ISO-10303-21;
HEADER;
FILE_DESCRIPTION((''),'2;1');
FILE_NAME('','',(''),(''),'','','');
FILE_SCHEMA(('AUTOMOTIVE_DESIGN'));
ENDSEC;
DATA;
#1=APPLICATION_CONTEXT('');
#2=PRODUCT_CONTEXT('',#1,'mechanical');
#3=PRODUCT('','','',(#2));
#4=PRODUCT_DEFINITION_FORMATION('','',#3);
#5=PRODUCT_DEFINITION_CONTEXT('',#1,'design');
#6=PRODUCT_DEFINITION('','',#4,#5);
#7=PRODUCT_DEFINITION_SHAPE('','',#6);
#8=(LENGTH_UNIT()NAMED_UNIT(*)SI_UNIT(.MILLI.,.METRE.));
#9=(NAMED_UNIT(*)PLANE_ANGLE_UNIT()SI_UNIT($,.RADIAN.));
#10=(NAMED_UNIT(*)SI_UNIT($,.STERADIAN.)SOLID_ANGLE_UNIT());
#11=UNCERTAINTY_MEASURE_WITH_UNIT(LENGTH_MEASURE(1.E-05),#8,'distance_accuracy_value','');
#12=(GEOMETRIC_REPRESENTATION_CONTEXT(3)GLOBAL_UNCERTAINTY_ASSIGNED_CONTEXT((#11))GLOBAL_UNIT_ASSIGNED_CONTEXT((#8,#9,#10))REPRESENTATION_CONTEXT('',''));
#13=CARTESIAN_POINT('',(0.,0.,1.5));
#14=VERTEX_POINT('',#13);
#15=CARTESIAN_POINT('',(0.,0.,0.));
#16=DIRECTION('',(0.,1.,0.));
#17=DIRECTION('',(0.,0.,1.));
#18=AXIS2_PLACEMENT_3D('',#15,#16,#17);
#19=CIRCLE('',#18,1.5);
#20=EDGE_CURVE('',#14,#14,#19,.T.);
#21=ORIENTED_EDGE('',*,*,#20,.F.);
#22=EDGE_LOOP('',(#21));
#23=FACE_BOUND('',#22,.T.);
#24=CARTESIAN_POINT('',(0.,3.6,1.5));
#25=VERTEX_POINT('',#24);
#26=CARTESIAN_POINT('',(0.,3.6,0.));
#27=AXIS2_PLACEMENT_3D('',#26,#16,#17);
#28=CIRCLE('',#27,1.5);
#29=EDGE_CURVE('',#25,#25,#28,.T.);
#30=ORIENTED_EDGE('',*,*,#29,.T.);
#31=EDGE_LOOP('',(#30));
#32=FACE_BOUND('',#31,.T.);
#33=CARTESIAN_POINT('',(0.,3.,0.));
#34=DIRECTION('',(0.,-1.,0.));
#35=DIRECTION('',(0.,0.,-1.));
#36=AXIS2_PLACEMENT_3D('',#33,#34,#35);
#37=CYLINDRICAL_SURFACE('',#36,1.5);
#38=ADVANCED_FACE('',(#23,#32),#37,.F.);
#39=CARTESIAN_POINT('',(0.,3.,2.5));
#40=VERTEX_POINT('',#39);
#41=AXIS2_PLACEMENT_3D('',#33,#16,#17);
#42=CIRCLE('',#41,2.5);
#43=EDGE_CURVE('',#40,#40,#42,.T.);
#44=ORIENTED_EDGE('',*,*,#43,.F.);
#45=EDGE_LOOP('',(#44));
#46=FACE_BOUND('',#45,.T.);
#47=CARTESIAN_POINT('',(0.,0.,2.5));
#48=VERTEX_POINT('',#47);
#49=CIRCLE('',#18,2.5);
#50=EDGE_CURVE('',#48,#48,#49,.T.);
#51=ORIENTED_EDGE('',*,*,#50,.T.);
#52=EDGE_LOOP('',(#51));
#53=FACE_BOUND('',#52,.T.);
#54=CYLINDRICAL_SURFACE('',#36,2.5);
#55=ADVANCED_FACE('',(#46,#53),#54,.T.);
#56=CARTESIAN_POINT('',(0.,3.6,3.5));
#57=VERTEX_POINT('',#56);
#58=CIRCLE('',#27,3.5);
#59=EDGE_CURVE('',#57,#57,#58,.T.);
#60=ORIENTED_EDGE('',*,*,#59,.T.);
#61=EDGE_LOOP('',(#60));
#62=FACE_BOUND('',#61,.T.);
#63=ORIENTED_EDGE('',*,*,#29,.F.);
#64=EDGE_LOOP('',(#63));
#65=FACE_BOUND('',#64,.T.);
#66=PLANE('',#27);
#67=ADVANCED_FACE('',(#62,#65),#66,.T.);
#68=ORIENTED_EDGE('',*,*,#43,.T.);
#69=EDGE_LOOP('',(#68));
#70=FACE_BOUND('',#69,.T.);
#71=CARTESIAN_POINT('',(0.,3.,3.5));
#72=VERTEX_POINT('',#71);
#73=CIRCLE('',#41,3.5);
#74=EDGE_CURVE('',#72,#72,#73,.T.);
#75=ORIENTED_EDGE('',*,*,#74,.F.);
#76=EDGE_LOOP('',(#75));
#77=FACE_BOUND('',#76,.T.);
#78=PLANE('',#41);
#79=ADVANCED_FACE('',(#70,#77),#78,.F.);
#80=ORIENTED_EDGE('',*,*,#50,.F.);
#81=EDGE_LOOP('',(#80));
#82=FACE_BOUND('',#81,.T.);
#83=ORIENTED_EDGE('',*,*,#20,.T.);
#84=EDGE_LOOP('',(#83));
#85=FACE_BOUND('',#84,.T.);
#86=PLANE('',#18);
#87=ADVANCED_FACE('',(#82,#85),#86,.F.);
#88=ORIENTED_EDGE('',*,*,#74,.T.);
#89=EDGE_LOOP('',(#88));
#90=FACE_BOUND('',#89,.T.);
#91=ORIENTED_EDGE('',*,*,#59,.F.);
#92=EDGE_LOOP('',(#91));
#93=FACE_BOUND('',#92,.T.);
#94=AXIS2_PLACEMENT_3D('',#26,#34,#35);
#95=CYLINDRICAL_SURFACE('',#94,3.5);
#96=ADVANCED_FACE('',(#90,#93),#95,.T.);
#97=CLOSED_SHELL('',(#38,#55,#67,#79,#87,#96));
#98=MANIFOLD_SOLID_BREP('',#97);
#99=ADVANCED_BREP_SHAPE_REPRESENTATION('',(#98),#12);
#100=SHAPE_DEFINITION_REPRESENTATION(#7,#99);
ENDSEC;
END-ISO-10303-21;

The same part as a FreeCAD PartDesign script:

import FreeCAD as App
import Part
import Sketcher
from FreeCAD import Vector
Q = App.Units.Quantity

doc = App.newDocument("Part")
body = doc.addObject("PartDesign::Body", "Body")

# Sketch on XZ plane
sketch1 = body.newObject("Sketcher::SketchObject", "Sketch")
sketch1.AttachmentSupport = (doc.getObject("XZ_Plane"), [""])
sketch1.MapMode = "FlatFace"
sketch1.addGeometry(Part.Circle(Vector(0, 0, 0), Vector(0, 0, 1), 2.5), False)
sketch1.addGeometry(Part.Circle(Vector(0, 0, 0), Vector(0, 0, 1), 1.5), False)
sketch1.addConstraint(Sketcher.Constraint("Coincident", 0, 3, -1, 1))
sketch1.addConstraint(Sketcher.Constraint("Coincident", 1, 3, -1, 1))
sketch1.addConstraint(Sketcher.Constraint("Diameter", 0, Q("5 mm")))
sketch1.addConstraint(Sketcher.Constraint("Diameter", 1, Q("3 mm")))
pad1 = body.newObject("PartDesign::Pad", "Pad")
pad1.Profile = sketch1
pad1.Length = 3
pad1.Reversed = True

# Sketch on XZ plane
sketch2 = body.newObject("Sketcher::SketchObject", "Sketch001")
sketch2.AttachmentSupport = (doc.getObject("XZ_Plane"), [""])
sketch2.MapMode = "FlatFace"
sketch2.AttachmentOffset = App.Placement(Vector(0, 0, -3), App.Rotation())
sketch2.addGeometry(Part.Circle(Vector(0, 0, 0), Vector(0, 0, 1), 3.5), False)
sketch2.addGeometry(Part.Circle(Vector(0, 0, 0), Vector(0, 0, 1), 1.5), False)
sketch2.addConstraint(Sketcher.Constraint("Coincident", 0, 3, -1, 1))
sketch2.addConstraint(Sketcher.Constraint("Coincident", 1, 3, -1, 1))
sketch2.addConstraint(Sketcher.Constraint("Diameter", 0, Q("7 mm")))
sketch2.addConstraint(Sketcher.Constraint("Diameter", 1, Q("3 mm")))
pad2 = body.newObject("PartDesign::Pad", "Pad001")
pad2.Profile = sketch2
pad2.Length = 0.6
pad2.Reversed = True

doc.recompute()
